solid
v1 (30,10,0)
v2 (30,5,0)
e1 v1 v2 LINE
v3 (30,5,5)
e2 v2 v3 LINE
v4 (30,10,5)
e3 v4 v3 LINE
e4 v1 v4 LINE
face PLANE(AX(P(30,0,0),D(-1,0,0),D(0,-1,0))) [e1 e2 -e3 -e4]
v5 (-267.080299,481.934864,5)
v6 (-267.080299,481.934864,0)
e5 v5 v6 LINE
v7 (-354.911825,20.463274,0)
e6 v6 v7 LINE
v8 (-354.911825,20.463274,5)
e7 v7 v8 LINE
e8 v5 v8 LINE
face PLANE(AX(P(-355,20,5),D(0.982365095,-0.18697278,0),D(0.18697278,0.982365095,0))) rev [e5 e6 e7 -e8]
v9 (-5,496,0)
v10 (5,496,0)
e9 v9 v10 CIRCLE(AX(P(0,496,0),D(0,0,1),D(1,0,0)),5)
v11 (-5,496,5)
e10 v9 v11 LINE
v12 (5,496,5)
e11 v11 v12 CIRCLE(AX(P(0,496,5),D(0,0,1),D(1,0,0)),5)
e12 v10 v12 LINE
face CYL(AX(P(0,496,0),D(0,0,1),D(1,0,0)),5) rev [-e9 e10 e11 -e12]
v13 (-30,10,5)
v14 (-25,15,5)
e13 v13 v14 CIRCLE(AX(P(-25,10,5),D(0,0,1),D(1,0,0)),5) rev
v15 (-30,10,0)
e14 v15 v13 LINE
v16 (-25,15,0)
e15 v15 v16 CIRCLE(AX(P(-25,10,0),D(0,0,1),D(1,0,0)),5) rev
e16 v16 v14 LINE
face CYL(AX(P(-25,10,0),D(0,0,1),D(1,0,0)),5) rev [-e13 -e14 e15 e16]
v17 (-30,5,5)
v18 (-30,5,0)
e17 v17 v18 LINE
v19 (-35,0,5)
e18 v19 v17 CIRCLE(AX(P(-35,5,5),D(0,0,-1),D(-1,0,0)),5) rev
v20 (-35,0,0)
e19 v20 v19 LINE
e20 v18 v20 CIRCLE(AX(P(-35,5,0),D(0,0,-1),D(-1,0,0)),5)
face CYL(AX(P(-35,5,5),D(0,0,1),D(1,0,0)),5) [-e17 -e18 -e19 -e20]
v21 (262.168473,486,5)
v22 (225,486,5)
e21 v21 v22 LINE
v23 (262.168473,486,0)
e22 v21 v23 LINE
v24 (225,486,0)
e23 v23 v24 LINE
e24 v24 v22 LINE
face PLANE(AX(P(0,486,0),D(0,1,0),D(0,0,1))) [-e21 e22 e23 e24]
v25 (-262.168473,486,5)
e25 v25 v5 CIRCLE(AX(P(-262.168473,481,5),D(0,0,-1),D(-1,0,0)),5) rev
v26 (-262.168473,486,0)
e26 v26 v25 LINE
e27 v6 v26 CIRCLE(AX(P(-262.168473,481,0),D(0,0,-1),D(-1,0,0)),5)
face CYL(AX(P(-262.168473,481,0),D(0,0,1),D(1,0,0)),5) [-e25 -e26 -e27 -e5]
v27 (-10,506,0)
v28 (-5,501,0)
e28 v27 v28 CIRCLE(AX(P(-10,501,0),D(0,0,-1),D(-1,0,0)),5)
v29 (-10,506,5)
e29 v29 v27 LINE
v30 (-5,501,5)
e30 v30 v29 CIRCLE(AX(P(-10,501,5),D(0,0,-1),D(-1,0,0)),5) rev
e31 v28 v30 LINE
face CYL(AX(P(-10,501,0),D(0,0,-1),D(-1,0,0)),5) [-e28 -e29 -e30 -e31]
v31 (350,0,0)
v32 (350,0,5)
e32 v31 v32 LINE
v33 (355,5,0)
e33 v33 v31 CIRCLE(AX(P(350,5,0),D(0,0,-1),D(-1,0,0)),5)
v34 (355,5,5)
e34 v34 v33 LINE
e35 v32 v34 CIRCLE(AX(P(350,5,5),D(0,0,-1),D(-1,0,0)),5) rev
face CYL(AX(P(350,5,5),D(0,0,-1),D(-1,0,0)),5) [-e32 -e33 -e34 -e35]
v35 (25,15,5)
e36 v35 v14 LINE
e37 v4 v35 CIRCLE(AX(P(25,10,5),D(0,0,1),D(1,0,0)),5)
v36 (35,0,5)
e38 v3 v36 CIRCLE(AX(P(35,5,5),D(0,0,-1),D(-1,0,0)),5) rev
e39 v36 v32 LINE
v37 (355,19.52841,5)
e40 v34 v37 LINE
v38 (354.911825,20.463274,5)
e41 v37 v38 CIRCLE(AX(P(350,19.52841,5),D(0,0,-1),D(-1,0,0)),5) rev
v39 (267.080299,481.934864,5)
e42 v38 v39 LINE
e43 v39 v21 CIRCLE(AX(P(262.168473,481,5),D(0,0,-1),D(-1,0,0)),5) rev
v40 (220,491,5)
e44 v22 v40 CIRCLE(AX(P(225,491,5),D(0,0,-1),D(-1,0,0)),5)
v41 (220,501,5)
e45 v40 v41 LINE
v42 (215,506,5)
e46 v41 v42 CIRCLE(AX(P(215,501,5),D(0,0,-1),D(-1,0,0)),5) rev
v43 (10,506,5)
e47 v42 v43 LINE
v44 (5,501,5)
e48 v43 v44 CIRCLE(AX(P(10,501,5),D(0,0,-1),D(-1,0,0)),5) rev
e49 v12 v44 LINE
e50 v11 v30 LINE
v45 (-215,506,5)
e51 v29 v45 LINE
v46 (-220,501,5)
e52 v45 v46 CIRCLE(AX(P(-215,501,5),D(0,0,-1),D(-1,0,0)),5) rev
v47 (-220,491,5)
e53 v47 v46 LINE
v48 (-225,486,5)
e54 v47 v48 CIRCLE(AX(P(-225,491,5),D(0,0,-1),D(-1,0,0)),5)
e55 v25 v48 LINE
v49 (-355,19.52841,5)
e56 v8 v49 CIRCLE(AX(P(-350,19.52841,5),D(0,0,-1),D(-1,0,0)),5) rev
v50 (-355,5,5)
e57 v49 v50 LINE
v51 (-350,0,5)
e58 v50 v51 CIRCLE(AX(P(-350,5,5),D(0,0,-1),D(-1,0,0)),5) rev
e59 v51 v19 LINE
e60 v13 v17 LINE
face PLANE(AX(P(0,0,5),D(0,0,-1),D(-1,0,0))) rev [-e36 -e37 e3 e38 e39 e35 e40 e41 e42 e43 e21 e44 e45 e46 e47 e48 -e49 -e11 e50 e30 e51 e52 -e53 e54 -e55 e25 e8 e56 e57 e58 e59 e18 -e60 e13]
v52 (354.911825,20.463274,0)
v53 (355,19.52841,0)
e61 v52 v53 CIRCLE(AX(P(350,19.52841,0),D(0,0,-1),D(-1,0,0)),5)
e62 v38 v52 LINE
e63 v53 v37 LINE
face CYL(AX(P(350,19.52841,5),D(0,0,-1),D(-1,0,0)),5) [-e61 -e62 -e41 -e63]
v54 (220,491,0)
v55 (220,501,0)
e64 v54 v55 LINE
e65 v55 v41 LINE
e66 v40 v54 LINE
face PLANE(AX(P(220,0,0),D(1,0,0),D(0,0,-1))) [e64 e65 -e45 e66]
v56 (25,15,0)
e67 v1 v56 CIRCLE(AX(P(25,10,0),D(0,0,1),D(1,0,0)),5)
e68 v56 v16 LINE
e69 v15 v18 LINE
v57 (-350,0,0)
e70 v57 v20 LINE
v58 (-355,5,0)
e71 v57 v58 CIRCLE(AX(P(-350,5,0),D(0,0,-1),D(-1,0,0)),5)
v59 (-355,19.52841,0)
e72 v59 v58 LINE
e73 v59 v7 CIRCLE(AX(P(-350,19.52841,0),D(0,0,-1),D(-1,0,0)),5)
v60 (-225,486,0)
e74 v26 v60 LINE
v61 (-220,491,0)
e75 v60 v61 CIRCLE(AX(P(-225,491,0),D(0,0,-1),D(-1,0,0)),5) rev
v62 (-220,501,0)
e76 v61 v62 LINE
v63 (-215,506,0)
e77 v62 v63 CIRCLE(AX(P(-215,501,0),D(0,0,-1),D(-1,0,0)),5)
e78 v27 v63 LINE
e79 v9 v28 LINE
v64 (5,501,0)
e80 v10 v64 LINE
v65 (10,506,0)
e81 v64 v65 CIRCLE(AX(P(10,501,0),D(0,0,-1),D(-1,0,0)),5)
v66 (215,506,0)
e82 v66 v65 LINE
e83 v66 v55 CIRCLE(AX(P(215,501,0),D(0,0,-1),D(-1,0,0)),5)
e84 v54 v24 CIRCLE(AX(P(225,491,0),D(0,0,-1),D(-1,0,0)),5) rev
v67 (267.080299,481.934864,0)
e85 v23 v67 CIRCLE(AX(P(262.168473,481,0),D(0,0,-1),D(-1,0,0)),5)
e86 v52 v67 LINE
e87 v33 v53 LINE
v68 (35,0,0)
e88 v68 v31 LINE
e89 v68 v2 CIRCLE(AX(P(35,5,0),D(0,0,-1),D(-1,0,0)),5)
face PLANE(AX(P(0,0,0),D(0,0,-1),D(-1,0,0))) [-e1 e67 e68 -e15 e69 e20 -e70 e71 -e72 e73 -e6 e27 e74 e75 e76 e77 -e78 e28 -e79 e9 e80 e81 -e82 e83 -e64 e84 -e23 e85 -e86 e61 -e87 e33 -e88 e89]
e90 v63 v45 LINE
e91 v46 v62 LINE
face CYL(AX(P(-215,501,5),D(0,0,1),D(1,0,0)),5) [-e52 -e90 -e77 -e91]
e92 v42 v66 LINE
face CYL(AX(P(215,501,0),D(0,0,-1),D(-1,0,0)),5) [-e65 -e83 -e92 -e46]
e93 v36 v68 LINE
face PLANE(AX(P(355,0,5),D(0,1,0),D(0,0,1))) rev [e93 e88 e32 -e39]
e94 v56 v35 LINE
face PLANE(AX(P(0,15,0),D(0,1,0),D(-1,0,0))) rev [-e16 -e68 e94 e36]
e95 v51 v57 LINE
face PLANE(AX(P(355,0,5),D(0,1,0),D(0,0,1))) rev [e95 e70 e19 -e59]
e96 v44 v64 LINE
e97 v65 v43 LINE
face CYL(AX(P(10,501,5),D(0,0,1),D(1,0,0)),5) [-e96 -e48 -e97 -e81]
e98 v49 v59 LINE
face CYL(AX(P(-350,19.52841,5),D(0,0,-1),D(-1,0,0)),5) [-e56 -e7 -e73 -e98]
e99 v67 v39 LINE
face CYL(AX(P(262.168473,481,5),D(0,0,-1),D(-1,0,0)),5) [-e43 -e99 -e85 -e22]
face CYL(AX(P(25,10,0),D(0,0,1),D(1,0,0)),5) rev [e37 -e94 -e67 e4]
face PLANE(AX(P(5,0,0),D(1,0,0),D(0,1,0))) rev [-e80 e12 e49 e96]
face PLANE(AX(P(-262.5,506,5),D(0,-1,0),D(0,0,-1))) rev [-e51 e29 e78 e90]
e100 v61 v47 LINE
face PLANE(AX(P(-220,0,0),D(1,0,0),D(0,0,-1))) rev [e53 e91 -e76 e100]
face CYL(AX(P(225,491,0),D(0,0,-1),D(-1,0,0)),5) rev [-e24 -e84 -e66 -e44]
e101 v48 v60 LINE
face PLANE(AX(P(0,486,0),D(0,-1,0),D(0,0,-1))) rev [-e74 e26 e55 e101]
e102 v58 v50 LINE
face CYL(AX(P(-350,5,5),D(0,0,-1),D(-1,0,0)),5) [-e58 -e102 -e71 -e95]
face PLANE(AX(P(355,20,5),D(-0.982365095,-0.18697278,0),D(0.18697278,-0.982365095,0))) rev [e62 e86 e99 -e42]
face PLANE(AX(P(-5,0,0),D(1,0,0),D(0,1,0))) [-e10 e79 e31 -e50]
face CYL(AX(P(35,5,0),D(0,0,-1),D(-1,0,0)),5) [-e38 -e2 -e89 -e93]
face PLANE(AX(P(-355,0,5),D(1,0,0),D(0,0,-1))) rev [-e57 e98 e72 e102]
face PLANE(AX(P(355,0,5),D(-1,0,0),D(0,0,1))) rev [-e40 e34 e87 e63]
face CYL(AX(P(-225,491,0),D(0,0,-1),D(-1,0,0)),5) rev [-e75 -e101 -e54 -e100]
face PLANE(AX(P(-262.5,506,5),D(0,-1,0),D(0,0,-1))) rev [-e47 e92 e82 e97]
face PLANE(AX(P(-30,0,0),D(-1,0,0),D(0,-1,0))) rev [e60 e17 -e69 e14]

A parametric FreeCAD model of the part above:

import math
import FreeCAD as App
import Part
import Sketcher
from FreeCAD import Vector


def edges_at(feature, points):
    """Names of the edges that pass closest to the given points."""
    edges = feature.Shape.Edges
    near = lambda p: min(range(len(edges)), key=lambda i: edges[i].distToShape(Part.Vertex(*p))[0])
    return sorted({f"Edge{near(p) + 1}" for p in points})

doc = App.newDocument("Part")
params = doc.addObject("Spreadsheet::Sheet", "Params")
for row, (alias, value) in enumerate([
    ("sketch1_width", "710 mm"),
    ("sketch1_width2", "525 mm"),
    ("sketch1_height", "20 mm"),
    ("pad1_length", "5 mm"),
    ("sketch2_radius", "5 mm"),
    ("sketch2_width", "60 mm"),
    ("sketch2_height", "20 mm"),
    ("sketch2_width2", "42.5 mm"),
    ("fillet_radius", "5 mm"),
], start=1):
    params.set(f"A{row}", alias)
    params.set(f"B{row}", "=" + value)
    params.setAlias(f"B{row}", alias)

body = doc.addObject("PartDesign::Body", "Body")

# Sketch on XY plane
sketch1 = body.newObject("Sketcher::SketchObject", "Sketch")
sketch1.AttachmentSupport = (doc.getObject("XY_Plane"), [""])
sketch1.MapMode = "FlatFace"
sketch1.addGeometry(Part.LineSegment(Vector(-355, 0, 0), Vector(355, 0, 0)), False)
sketch1.addGeometry(Part.LineSegment(Vector(355, 0, 0), Vector(355, 20, 0)), False)
sketch1.addGeometry(Part.LineSegment(Vector(355, 20, 0), Vector(262, 506, 0)), False)
sketch1.addGeometry(Part.LineSegment(Vector(262, 506, 0), Vector(-262, 506, 0)), False)
sketch1.addGeometry(Part.LineSegment(Vector(-262, 506, 0), Vector(-355, 20, 0)), False)
sketch1.addGeometry(Part.LineSegment(Vector(-355, 20, 0), Vector(-355, 0, 0)), False)
sketch1.addConstraint(Sketcher.Constraint("Coincident", 0, 2, 1, 1))
sketch1.addConstraint(Sketcher.Constraint("Coincident", 1, 2, 2, 1))
sketch1.addConstraint(Sketcher.Constraint("Coincident", 2, 2, 3, 1))
sketch1.addConstraint(Sketcher.Constraint("Coincident", 3, 2, 4, 1))
sketch1.addConstraint(Sketcher.Constraint("Coincident", 4, 2, 5, 1))
sketch1.addConstraint(Sketcher.Constraint("Coincident", 5, 2, 0, 1))
sketch1.addConstraint(Sketcher.Constraint("Horizontal", 0))
sketch1.addConstraint(Sketcher.Constraint("Vertical", 1))
sketch1.addConstraint(Sketcher.Constraint("Horizontal", 3))
sketch1.addConstraint(Sketcher.Constraint("Vertical", 5))
sketch1.addConstraint(Sketcher.Constraint("Symmetric", 0, 2, 5, 2, -1, 1))
sketch1.addConstraint(Sketcher.Constraint("Horizontal", 1, 2, 4, 2))
sketch1.addConstraint(Sketcher.Constraint("Equal", 2, 4))
sketch1.addConstraint(Sketcher.Constraint("DistanceX", 0, 1, 0, 2, 710.0))
sketch1.addConstraint(Sketcher.Constraint("DistanceX", 3, 2, 3, 1, 525.0))
sketch1.addConstraint(Sketcher.Constraint("DistanceY", 1, 1, 1, 2, 20.0))
sketch1.addConstraint(Sketcher.Constraint("DistanceY", -1, 1, 2, 2, 506.0))
sketch1.setExpression("Constraints[13]", "Params.sketch1_width")
sketch1.setExpression("Constraints[14]", "Params.sketch1_width2")
sketch1.setExpression("Constraints[15]", "Params.sketch1_height")
pad1 = body.newObject("PartDesign::Pad", "Pad")
pad1.Profile = sketch1
pad1.setExpression("Length", "Params.pad1_length")

# Sketch on XY plane
sketch2 = body.newObject("Sketcher::SketchObject", "Sketch001")
sketch2.AttachmentSupport = (doc.getObject("XY_Plane"), [""])
sketch2.MapMode = "FlatFace"
sketch2.AttachmentOffset = App.Placement(Vector(0, 0, 5), App.Rotation())
sketch2.addGeometry(Part.LineSegment(Vector(-262, 506, 0), Vector(-266, 486, 0)), False)
sketch2.addGeometry(Part.LineSegment(Vector(-266, 486, 0), Vector(-220, 486, 0)), False)
sketch2.addGeometry(Part.LineSegment(Vector(-220, 486, 0), Vector(-220, 506, 0)), False)
sketch2.addGeometry(Part.LineSegment(Vector(-220, 506, 0), Vector(-262, 506, 0)), False)
sketch2.addGeometry(Part.LineSegment(Vector(262, 506, 0), Vector(220, 506, 0)), False)
sketch2.addGeometry(Part.LineSegment(Vector(220, 506, 0), Vector(220, 486, 0)), False)
sketch2.addGeometry(Part.LineSegment(Vector(220, 486, 0), Vector(266, 486, 0)), False)
sketch2.addGeometry(Part.LineSegment(Vector(266, 486, 0), Vector(262, 506, 0)), False)
sketch2.addGeometry(Part.LineSegment(Vector(5, 506, 0), Vector(-5, 506, 0)), False)
sketch2.addGeometry(Part.LineSegment(Vector(-5, 506, 0), Vector(-5, 496, 0)), False)
sketch2.addGeometry(Part.ArcOfCircle(Part.Circle(Vector(0, 496, 0), Vector(0, 0, 1), 5), math.radians(180), math.radians(360)), False)
sketch2.addGeometry(Part.LineSegment(Vector(5, 496, 0), Vector(5, 506, 0)), False)
sketch2.addGeometry(Part.LineSegment(Vector(-30, 10, 0), Vector(-30, 0, 0)), False)
sketch2.addGeometry(Part.LineSegment(Vector(-30, 0, 0), Vector(30, 0, 0)), False)
sketch2.addGeometry(Part.LineSegment(Vector(30, 0, 0), Vector(30, 10, 0)), False)
sketch2.addGeometry(Part.ArcOfCircle(Part.Circle(Vector(25, 10, 0), Vector(0, 0, 1), 5), math.radians(0), math.radians(90)), False)
sketch2.addGeometry(Part.LineSegment(Vector(25, 15, 0), Vector(-25, 15, 0)), False)
sketch2.addGeometry(Part.ArcOfCircle(Part.Circle(Vector(-25, 10, 0), Vector(0, 0, 1), 5), math.radians(90), math.radians(180)), False)
sketch2.addConstraint(Sketcher.Constraint("Coincident", 0, 2, 1, 1))
sketch2.addConstraint(Sketcher.Constraint("Coincident", 1, 2, 2, 1))
sketch2.addConstraint(Sketcher.Constraint("Coincident", 2, 2, 3, 1))
sketch2.addConstraint(Sketcher.Constraint("Coincident", 3, 2, 0, 1))
sketch2.addConstraint(Sketcher.Constraint("Coincident", 4, 2, 5, 1))
sketch2.addConstraint(Sketcher.Constraint("Coincident", 5, 2, 6, 1))
sketch2.addConstraint(Sketcher.Constraint("Coincident", 6, 2, 7, 1))
sketch2.addConstraint(Sketcher.Constraint("Coincident", 7, 2, 4, 1))
sketch2.addConstraint(Sketcher.Constraint("Coincident", 8, 2, 9, 1))
sketch2.addConstraint(Sketcher.Constraint("Tangent", 9, 2, 10, 1))
sketch2.addConstraint(Sketcher.Constraint("Tangent", 10, 2, 11, 1))
sketch2.addConstraint(Sketcher.Constraint("Coincident", 11, 2, 8, 1))
sketch2.addConstraint(Sketcher.Constraint("Coincident", 12, 2, 13, 1))
sketch2.addConstraint(Sketcher.Constraint("Coincident", 13, 2, 14, 1))
sketch2.addConstraint(Sketcher.Constraint("Tangent", 14, 2, 15, 1))
sketch2.addConstraint(Sketcher.Constraint("Tangent", 15, 2, 16, 1))
sketch2.addConstraint(Sketcher.Constraint("Tangent", 16, 2, 17, 1))
sketch2.addConstraint(Sketcher.Constraint("Tangent", 17, 2, 12, 1))
sketch2.addConstraint(Sketcher.Constraint("Horizontal", 1))
sketch2.addConstraint(Sketcher.Constraint("Vertical", 2))
sketch2.addConstraint(Sketcher.Constraint("Horizontal", 3))
sketch2.addConstraint(Sketcher.Constraint("Horizontal", 4))
sketch2.addConstraint(Sketcher.Constraint("Vertical", 5))
sketch2.addConstraint(Sketcher.Constraint("Horizontal", 6))
sketch2.addConstraint(Sketcher.Constraint("Horizontal", 8))
sketch2.addConstraint(Sketcher.Constraint("Vertical", 9))
sketch2.addConstraint(Sketcher.Constraint("Vertical", 11))
sketch2.addConstraint(Sketcher.Constraint("Vertical", 12))
sketch2.addConstraint(Sketcher.Constraint("Horizontal", 13))
sketch2.addConstraint(Sketcher.Constraint("Vertical", 14))
sketch2.addConstraint(Sketcher.Constraint("Horizontal", 16))
sketch2.addConstraint(Sketcher.Constraint("Equal", 10, 15))
sketch2.addConstraint(Sketcher.Constraint("Equal", 15, 17))
sketch2.addConstraint(Sketcher.Constraint("Symmetric", 12, 2, 13, 2, -1, 1))
sketch2.addConstraint(Sketcher.Constraint("Symmetric", 2, 2, 4, 2, -2))
sketch2.addConstraint(Sketcher.Constraint("Symmetric", 0, 2, 6, 2, -2))
sketch2.addConstraint(Sketcher.Constraint("PointOnObject", 10, 3, -2))
sketch2.addConstraint(Sketcher.Constraint("Horizontal", 7, 2, 8, 2))
sketch2.addConstraint(Sketcher.Constraint("Equal", 3, 4))
sketch2.addConstraint(Sketcher.Constraint("Equal", 8, 9))
sketch2.addConstraint(Sketcher.Constraint("Equal", 11, 12))
sketch2.addConstraint(Sketcher.Constraint("Radius", 10, 5.0))
sketch2.addConstraint(Sketcher.Constraint("DistanceX", 13, 1, 13, 2, 60.0))
sketch2.addConstraint(Sketcher.Constraint("DistanceY", 2, 1, 2, 2, 20.0))
sketch2.addConstraint(Sketcher.Constraint("DistanceX", 3, 2, 3, 1, 42.5))
sketch2.addConstraint(Sketcher.Constraint("DistanceY", -1, 1, 10, 3, 496.0))
sketch2.addConstraint(Sketcher.Constraint("DistanceX", 1, 2, -1, 1, 220.0))
sketch2.addConstraint(Sketcher.Constraint("Distance", 0, 20.35903))
sketch2.setExpression("Constraints[41]", "Params.sketch2_radius")
sketch2.setExpression("Constraints[42]", "Params.sketch2_width")
sketch2.setExpression("Constraints[43]", "Params.sketch2_height")
sketch2.setExpression("Constraints[44]", "Params.sketch2_width2")
pocket1 = body.newObject("PartDesign::Pocket", "Pocket")
pocket1.Profile = sketch2
pocket1.Type = "ThroughAll"
doc.recompute()

fillet = body.newObject("PartDesign::Fillet", "Fillet")
fillet.Base = (pocket1, edges_at(pocket1, [
    (-355, 20, 2.5),
    (355, 20, 2.5),
    (355, 0, 2.5),
    (-355, 0, 2.5),
    (-220, 486, 2.5),
    (-266.307, 486, 2.5),
    (-220, 506, 2.5),
    (266.307, 486, 2.5),
    (220, 486, 2.5),
    (220, 506, 2.5),
    (-5, 506, 2.5),
    (5, 506, 2.5),
    (30, 0, 2.5),
    (-30, 0, 2.5),
]))
fillet.setExpression("Radius", "Params.fillet_radius")

doc.recompute()
